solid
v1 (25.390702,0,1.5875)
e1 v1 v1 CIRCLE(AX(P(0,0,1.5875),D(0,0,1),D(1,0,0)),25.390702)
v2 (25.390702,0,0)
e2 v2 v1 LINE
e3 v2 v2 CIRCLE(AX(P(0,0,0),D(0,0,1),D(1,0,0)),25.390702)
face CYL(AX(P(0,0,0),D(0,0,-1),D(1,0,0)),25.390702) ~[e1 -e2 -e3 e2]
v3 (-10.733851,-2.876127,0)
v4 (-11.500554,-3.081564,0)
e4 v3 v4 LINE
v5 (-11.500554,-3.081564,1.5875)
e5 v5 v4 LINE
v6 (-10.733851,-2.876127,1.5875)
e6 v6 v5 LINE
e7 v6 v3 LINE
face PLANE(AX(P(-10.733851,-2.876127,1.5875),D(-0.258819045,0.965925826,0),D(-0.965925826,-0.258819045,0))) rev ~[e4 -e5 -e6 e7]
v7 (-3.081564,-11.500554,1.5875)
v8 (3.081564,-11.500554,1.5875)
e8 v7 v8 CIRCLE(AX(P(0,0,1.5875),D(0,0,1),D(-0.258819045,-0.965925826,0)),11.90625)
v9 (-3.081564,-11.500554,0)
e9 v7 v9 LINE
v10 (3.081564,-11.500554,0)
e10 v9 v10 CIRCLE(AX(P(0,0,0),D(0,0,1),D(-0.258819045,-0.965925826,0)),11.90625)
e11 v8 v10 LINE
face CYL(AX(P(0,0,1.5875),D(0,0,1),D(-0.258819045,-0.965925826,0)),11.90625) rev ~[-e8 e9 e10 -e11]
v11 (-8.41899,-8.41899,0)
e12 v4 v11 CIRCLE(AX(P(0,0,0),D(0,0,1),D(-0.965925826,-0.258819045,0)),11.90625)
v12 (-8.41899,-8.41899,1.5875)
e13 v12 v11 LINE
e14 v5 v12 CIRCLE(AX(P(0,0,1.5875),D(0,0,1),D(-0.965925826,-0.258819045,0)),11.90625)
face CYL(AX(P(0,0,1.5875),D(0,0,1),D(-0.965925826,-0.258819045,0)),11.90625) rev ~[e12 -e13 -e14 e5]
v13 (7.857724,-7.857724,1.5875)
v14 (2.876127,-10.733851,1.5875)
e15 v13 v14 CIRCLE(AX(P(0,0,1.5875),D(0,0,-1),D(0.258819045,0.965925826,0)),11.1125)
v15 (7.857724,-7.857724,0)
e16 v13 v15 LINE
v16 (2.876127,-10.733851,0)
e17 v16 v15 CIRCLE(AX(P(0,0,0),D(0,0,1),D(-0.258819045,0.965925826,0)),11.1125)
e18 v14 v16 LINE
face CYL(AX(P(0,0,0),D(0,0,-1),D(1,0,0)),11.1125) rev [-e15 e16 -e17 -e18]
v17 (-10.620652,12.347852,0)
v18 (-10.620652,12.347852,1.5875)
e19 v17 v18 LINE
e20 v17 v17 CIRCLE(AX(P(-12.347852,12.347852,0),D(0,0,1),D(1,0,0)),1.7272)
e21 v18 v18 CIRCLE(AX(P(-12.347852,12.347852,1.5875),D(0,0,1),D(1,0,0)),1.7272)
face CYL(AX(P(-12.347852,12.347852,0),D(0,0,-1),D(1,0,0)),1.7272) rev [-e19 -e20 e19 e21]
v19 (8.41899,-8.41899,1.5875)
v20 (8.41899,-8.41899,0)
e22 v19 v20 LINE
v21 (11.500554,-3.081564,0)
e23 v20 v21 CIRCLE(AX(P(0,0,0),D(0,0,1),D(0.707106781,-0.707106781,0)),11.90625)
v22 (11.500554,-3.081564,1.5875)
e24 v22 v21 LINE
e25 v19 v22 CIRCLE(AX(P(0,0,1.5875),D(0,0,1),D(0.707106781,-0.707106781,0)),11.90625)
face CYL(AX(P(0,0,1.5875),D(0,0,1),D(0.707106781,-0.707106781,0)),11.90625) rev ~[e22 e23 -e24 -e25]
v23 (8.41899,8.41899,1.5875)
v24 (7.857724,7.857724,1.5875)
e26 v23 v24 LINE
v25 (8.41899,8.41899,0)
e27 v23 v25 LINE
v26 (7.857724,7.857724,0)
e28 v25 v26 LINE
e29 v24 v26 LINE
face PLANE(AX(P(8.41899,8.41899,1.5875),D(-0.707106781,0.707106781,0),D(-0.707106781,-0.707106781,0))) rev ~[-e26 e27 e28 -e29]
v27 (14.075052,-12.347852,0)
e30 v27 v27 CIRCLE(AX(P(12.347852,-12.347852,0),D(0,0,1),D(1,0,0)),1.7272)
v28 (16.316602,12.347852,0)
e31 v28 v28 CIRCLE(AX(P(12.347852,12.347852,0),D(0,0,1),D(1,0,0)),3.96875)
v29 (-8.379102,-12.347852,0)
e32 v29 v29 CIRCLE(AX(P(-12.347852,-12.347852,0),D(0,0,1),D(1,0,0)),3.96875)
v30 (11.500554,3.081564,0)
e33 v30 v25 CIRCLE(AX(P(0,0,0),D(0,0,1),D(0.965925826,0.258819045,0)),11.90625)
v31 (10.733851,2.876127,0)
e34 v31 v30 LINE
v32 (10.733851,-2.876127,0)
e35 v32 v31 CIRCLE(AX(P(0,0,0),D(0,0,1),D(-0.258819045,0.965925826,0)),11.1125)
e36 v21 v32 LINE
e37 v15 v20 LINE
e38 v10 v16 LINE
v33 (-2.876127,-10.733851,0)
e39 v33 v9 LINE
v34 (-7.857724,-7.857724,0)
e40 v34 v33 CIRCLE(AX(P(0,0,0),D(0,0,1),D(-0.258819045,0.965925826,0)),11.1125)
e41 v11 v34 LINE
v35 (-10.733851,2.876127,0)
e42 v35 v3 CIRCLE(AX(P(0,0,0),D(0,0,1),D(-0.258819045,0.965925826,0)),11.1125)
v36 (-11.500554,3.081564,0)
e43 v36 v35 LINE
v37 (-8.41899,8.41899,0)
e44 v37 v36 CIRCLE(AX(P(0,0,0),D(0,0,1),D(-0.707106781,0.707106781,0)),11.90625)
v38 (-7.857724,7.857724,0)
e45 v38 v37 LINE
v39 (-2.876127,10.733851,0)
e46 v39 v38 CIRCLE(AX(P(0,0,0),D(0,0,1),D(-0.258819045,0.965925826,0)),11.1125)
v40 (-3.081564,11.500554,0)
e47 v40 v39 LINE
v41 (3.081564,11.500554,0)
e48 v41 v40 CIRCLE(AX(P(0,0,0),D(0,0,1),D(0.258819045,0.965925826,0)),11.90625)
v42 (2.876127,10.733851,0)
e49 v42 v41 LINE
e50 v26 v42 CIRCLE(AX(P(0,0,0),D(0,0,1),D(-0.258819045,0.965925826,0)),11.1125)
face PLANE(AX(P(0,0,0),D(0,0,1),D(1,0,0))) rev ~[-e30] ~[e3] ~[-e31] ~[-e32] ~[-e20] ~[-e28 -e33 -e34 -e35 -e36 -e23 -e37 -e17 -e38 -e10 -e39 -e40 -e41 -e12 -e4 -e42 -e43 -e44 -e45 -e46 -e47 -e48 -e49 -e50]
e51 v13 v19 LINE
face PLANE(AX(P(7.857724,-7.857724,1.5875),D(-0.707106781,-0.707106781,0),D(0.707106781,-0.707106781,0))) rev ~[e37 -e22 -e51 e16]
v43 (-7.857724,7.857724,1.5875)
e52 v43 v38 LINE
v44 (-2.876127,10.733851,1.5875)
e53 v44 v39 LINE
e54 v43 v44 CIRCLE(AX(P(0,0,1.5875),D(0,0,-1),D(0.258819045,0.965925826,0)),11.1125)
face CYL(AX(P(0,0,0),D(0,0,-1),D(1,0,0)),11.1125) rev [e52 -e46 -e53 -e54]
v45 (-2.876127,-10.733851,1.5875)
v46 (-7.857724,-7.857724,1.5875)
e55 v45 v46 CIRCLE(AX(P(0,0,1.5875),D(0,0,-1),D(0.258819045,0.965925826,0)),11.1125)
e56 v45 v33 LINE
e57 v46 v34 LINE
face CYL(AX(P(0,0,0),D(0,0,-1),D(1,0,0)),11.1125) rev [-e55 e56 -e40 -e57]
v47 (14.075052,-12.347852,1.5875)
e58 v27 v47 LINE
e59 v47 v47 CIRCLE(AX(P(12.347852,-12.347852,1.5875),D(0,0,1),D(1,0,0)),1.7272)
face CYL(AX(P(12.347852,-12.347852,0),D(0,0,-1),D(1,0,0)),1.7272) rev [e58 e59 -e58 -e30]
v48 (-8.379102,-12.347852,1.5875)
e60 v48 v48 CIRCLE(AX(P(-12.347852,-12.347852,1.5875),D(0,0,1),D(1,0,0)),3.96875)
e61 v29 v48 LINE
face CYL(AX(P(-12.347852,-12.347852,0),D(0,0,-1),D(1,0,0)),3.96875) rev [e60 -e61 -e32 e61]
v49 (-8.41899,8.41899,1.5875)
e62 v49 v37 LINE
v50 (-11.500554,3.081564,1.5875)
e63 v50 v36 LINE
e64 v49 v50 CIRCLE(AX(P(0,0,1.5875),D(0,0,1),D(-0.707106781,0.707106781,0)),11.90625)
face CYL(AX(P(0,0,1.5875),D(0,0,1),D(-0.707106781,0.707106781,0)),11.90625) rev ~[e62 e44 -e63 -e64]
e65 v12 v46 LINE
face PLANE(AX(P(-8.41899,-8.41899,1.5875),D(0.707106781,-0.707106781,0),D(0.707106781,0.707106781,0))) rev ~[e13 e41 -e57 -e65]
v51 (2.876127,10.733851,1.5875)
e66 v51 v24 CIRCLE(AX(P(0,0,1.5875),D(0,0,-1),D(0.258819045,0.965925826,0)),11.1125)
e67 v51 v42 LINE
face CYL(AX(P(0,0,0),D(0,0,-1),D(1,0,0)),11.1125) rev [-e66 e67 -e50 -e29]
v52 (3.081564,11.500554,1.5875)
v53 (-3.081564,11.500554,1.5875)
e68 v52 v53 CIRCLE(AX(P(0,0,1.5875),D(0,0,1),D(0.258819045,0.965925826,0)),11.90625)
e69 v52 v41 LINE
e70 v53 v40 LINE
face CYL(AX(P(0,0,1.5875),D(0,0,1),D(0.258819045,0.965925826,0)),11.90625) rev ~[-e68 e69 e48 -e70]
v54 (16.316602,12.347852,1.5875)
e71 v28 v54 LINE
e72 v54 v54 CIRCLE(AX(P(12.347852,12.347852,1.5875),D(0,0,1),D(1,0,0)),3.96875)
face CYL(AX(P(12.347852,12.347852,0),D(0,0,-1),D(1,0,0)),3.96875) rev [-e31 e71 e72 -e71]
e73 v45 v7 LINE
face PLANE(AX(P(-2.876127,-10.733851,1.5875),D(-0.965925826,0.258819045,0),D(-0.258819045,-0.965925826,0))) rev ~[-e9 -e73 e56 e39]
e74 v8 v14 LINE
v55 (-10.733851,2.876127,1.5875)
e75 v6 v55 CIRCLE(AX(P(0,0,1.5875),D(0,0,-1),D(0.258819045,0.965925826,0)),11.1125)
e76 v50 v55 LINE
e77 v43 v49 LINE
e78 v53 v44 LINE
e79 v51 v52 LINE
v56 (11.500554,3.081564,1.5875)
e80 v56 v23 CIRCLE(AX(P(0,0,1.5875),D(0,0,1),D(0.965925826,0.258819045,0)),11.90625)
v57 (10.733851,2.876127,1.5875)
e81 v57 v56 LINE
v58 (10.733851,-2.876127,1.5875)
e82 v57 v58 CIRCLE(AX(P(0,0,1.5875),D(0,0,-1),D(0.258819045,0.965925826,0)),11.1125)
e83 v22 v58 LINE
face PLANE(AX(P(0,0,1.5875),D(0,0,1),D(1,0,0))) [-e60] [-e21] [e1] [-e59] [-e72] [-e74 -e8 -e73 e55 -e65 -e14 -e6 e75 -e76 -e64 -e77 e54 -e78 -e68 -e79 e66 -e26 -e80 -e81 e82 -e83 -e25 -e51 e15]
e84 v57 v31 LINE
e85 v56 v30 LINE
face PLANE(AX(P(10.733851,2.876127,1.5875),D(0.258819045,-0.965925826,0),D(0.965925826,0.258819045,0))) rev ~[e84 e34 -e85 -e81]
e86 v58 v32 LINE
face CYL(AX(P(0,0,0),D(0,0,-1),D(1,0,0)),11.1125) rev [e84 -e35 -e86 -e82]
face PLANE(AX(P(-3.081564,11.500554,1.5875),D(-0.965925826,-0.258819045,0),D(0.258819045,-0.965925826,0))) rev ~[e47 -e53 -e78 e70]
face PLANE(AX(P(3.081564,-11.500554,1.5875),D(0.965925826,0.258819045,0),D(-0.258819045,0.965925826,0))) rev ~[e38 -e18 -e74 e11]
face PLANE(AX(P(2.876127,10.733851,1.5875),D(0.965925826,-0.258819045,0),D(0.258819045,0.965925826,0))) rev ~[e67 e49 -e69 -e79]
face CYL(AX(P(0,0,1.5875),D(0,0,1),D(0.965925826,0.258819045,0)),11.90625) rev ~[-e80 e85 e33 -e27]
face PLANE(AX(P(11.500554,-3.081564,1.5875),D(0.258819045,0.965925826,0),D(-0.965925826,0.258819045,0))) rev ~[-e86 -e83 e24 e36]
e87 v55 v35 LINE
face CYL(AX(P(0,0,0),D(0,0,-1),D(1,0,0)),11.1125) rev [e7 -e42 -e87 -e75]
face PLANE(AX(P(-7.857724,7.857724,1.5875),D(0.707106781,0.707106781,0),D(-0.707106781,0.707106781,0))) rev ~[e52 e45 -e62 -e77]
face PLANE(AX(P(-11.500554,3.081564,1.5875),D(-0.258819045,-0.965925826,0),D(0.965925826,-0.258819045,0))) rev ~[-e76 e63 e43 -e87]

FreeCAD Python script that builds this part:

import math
import FreeCAD as App
import Part
import Sketcher
from FreeCAD import Vector
Q = App.Units.Quantity

doc = App.newDocument("Part")
body = doc.addObject("PartDesign::Body", "Body")

# Sketch on XY plane
sketch1 = body.newObject("Sketcher::SketchObject", "Sketch")
sketch1.AttachmentSupport = (doc.getObject("XY_Plane"), [""])
sketch1.MapMode = "FlatFace"
sketch1.addGeometry(Part.Circle(Vector(0, 0, 0), Vector(0, 0, 1), 25.4), False)
sketch1.addGeometry(Part.Circle(Vector(-12.3, -12.3, 0), Vector(0, 0, 1), 4), False)
sketch1.addGeometry(Part.Circle(Vector(0, 0, 0), Vector(0, 0, 1), 11.1), False)
sketch1.addGeometry(Part.Circle(Vector(12.3, -12.3, 0), Vector(0, 0, 1), 1.7), False)
sketch1.addGeometry(Part.Circle(Vector(-12.3, 12.3, 0), Vector(0, 0, 1), 1.7), False)
sketch1.addGeometry(Part.Circle(Vector(12.3, 12.3, 0), Vector(0, 0, 1), 4), False)
sketch1.addConstraint(Sketcher.Constraint("Coincident", 0, 3, -1, 1))
sketch1.addConstraint(Sketcher.Constraint("Coincident", 2, 3, -1, 1))
sketch1.addConstraint(Sketcher.Constraint("Equal", 3, 4))
sketch1.addConstraint(Sketcher.Constraint("Equal", 1, 5))
sketch1.addConstraint(Sketcher.Constraint("Symmetric", 3, 3, 4, 3, -1, 1))
sketch1.addConstraint(Sketcher.Constraint("Symmetric", 1, 3, 5, 3, -1, 1))
sketch1.addConstraint(Sketcher.Constraint("Symmetric", 1, 3, 3, 3, -2))
sketch1.addConstraint(Sketcher.Constraint("Diameter", 1, Q("0.3125 in")))
sketch1.addConstraint(Sketcher.Constraint("Diameter", 2, Q("0.875 in")))
sketch1.addConstraint(Sketcher.Constraint("Diameter", 3, Q("0.136 in")))
sketch1.addConstraint(Sketcher.Constraint("Diameter", 0, Q("50.781404 mm")))
sketch1.addConstraint(Sketcher.Constraint("DistanceX", 1, 3, -1, 1, Q("12.347852 mm")))
sketch1.addConstraint(Sketcher.Constraint("DistanceY", 1, 3, -1, 1, Q("12.347852 mm")))
pad1 = body.newObject("PartDesign::Pad", "Pad")
pad1.Profile = sketch1
pad1.Length = Q("0.0625 in")

# Sketch on XY plane
sketch2 = body.newObject("Sketcher::SketchObject", "Sketch001")
sketch2.AttachmentSupport = (doc.getObject("XY_Plane"), [""])
sketch2.MapMode = "FlatFace"
sketch2.AttachmentOffset = App.Placement(Vector(0, 0, 0.0625 * 25.4), App.Rotation())
sketch2.addGeometry(Part.ArcOfCircle(Part.Circle(Vector(0, 0, 0), Vector(0, 0, 1), 11.1), math.radians(75), math.radians(105)), False)
sketch2.addGeometry(Part.LineSegment(Vector(2.9, 10.7, 0), Vector(3.1, 11.5, 0)), False)
sketch2.addGeometry(Part.ArcOfCircle(Part.Circle(Vector(0, 0, 0), Vector(0, 0, 1), 11.9), math.radians(75), math.radians(105)), False)
sketch2.addGeometry(Part.LineSegment(Vector(-3.1, 11.5, 0), Vector(-2.9, 10.7, 0)), False)
sketch2.addConstraint(Sketcher.Constraint("Coincident", 0, 1, 1, 1))
sketch2.addConstraint(Sketcher.Constraint("Coincident", 1, 2, 2, 1))
sketch2.addConstraint(Sketcher.Constraint("Coincident", 2, 2, 3, 1))
sketch2.addConstraint(Sketcher.Constraint("Coincident", 3, 2, 0, 2))
sketch2.addConstraint(Sketcher.Constraint("Coincident", 0, 3, -1, 1))
sketch2.addConstraint(Sketcher.Constraint("Coincident", 2, 3, -1, 1))
sketch2.addConstraint(Sketcher.Constraint("Horizontal", 1, 2, 2, 2))
sketch2.addConstraint(Sketcher.Constraint("Horizontal", 0, 1, 3, 2))
sketch2.addConstraint(Sketcher.Constraint("Angle", 1, Q("75 deg")))
sketch2.addConstraint(Sketcher.Constraint("Radius", 0, Q("0.4375 in")))
sketch2.addConstraint(Sketcher.Constraint("Radius", 2, Q("0.46875 in")))
sketch2.addConstraint(Sketcher.Constraint("DistanceY", -1, 1, 0, 1, Q("10.733851 mm")))
pocket1 = body.newObject("PartDesign::Pocket", "Pocket")
pocket1.Profile = sketch2
pocket1.Type = "ThroughAll"
doc.recompute()

polarpattern = body.newObject("PartDesign::PolarPattern", "PolarPattern")
polarpattern.Originals = [pocket1]
polarpattern.Axis = (doc.getObject("Z_Axis"), [""])
polarpattern.Angle = 360
polarpattern.Occurrences = 6
body.Tip = polarpattern

doc.recompute()
